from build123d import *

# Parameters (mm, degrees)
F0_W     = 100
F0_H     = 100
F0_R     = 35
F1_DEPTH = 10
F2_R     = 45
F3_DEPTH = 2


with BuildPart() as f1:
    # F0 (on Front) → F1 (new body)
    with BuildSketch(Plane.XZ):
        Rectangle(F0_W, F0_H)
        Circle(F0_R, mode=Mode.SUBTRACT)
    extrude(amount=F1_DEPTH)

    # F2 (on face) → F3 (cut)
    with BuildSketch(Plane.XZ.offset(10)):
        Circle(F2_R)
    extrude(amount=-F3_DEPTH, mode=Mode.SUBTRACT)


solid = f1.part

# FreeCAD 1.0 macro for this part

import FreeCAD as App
import Part
import Sketcher

doc = App.newDocument("Part")
body = doc.addObject("PartDesign::Body", "Body")

# Sketch on XZ plane
sketch1 = body.newObject("Sketcher::SketchObject", "Sketch")
sketch1.AttachmentSupport = (doc.getObject("XZ_Plane"), [""])
sketch1.MapMode = "FlatFace"
sketch1.addGeometry([
    Part.LineSegment(App.Vector(-50, 50, 0), App.Vector(-50, -50, 0)),  # 0
    Part.LineSegment(App.Vector(-50, -50, 0), App.Vector(50, -50, 0)),  # 1
    Part.LineSegment(App.Vector(50, -50, 0), App.Vector(50, 50, 0)),  # 2
    Part.LineSegment(App.Vector(50, 50, 0), App.Vector(-50, 50, 0)),  # 3
    Part.Circle(App.Vector(0, 0, 0), App.Vector(0, 0, 1), 35),  # 4
], False)
sketch1.addConstraint([
    Sketcher.Constraint("Coincident", 0, 2, 1, 1),
    Sketcher.Constraint("Coincident", 1, 2, 2, 1),
    Sketcher.Constraint("Coincident", 2, 2, 3, 1),
    Sketcher.Constraint("Coincident", 3, 2, 0, 1),
    Sketcher.Constraint("Vertical", 0),
    Sketcher.Constraint("Horizontal", 1),
    Sketcher.Constraint("Vertical", 2),
    Sketcher.Constraint("Horizontal", 3),
    Sketcher.Constraint("Coincident", 4, 3, -1, 1),
    Sketcher.Constraint("Symmetric", 0, 2, 2, 2, -1, 1),
    Sketcher.Constraint("Equal", 3, 0),
    Sketcher.Constraint("Diameter", 4, 70.0),
    Sketcher.Constraint("DistanceX", 1, 1, 1, 2, 100.0),
])
pad1 = body.newObject("PartDesign::Pad", "Pad")
pad1.Profile = sketch1
pad1.Length = 10

# Sketch on XZ plane
sketch2 = body.newObject("Sketcher::SketchObject", "Sketch001")
sketch2.AttachmentSupport = (doc.getObject("XZ_Plane"), [""])
sketch2.MapMode = "FlatFace"
sketch2.AttachmentOffset = App.Placement(App.Vector(0, 0, 10), App.Rotation())
sketch2.addGeometry(Part.Circle(App.Vector(0, 0, 0), App.Vector(0, 0, 1), 45), False)
sketch2.addConstraint([
    Sketcher.Constraint("Coincident", 0, 3, -1, 1),
    Sketcher.Constraint("Diameter", 0, 90.0),
])
pocket1 = body.newObject("PartDesign::Pocket", "Pocket")
pocket1.Profile = sketch2
pocket1.Length = 2

doc.recompute()
